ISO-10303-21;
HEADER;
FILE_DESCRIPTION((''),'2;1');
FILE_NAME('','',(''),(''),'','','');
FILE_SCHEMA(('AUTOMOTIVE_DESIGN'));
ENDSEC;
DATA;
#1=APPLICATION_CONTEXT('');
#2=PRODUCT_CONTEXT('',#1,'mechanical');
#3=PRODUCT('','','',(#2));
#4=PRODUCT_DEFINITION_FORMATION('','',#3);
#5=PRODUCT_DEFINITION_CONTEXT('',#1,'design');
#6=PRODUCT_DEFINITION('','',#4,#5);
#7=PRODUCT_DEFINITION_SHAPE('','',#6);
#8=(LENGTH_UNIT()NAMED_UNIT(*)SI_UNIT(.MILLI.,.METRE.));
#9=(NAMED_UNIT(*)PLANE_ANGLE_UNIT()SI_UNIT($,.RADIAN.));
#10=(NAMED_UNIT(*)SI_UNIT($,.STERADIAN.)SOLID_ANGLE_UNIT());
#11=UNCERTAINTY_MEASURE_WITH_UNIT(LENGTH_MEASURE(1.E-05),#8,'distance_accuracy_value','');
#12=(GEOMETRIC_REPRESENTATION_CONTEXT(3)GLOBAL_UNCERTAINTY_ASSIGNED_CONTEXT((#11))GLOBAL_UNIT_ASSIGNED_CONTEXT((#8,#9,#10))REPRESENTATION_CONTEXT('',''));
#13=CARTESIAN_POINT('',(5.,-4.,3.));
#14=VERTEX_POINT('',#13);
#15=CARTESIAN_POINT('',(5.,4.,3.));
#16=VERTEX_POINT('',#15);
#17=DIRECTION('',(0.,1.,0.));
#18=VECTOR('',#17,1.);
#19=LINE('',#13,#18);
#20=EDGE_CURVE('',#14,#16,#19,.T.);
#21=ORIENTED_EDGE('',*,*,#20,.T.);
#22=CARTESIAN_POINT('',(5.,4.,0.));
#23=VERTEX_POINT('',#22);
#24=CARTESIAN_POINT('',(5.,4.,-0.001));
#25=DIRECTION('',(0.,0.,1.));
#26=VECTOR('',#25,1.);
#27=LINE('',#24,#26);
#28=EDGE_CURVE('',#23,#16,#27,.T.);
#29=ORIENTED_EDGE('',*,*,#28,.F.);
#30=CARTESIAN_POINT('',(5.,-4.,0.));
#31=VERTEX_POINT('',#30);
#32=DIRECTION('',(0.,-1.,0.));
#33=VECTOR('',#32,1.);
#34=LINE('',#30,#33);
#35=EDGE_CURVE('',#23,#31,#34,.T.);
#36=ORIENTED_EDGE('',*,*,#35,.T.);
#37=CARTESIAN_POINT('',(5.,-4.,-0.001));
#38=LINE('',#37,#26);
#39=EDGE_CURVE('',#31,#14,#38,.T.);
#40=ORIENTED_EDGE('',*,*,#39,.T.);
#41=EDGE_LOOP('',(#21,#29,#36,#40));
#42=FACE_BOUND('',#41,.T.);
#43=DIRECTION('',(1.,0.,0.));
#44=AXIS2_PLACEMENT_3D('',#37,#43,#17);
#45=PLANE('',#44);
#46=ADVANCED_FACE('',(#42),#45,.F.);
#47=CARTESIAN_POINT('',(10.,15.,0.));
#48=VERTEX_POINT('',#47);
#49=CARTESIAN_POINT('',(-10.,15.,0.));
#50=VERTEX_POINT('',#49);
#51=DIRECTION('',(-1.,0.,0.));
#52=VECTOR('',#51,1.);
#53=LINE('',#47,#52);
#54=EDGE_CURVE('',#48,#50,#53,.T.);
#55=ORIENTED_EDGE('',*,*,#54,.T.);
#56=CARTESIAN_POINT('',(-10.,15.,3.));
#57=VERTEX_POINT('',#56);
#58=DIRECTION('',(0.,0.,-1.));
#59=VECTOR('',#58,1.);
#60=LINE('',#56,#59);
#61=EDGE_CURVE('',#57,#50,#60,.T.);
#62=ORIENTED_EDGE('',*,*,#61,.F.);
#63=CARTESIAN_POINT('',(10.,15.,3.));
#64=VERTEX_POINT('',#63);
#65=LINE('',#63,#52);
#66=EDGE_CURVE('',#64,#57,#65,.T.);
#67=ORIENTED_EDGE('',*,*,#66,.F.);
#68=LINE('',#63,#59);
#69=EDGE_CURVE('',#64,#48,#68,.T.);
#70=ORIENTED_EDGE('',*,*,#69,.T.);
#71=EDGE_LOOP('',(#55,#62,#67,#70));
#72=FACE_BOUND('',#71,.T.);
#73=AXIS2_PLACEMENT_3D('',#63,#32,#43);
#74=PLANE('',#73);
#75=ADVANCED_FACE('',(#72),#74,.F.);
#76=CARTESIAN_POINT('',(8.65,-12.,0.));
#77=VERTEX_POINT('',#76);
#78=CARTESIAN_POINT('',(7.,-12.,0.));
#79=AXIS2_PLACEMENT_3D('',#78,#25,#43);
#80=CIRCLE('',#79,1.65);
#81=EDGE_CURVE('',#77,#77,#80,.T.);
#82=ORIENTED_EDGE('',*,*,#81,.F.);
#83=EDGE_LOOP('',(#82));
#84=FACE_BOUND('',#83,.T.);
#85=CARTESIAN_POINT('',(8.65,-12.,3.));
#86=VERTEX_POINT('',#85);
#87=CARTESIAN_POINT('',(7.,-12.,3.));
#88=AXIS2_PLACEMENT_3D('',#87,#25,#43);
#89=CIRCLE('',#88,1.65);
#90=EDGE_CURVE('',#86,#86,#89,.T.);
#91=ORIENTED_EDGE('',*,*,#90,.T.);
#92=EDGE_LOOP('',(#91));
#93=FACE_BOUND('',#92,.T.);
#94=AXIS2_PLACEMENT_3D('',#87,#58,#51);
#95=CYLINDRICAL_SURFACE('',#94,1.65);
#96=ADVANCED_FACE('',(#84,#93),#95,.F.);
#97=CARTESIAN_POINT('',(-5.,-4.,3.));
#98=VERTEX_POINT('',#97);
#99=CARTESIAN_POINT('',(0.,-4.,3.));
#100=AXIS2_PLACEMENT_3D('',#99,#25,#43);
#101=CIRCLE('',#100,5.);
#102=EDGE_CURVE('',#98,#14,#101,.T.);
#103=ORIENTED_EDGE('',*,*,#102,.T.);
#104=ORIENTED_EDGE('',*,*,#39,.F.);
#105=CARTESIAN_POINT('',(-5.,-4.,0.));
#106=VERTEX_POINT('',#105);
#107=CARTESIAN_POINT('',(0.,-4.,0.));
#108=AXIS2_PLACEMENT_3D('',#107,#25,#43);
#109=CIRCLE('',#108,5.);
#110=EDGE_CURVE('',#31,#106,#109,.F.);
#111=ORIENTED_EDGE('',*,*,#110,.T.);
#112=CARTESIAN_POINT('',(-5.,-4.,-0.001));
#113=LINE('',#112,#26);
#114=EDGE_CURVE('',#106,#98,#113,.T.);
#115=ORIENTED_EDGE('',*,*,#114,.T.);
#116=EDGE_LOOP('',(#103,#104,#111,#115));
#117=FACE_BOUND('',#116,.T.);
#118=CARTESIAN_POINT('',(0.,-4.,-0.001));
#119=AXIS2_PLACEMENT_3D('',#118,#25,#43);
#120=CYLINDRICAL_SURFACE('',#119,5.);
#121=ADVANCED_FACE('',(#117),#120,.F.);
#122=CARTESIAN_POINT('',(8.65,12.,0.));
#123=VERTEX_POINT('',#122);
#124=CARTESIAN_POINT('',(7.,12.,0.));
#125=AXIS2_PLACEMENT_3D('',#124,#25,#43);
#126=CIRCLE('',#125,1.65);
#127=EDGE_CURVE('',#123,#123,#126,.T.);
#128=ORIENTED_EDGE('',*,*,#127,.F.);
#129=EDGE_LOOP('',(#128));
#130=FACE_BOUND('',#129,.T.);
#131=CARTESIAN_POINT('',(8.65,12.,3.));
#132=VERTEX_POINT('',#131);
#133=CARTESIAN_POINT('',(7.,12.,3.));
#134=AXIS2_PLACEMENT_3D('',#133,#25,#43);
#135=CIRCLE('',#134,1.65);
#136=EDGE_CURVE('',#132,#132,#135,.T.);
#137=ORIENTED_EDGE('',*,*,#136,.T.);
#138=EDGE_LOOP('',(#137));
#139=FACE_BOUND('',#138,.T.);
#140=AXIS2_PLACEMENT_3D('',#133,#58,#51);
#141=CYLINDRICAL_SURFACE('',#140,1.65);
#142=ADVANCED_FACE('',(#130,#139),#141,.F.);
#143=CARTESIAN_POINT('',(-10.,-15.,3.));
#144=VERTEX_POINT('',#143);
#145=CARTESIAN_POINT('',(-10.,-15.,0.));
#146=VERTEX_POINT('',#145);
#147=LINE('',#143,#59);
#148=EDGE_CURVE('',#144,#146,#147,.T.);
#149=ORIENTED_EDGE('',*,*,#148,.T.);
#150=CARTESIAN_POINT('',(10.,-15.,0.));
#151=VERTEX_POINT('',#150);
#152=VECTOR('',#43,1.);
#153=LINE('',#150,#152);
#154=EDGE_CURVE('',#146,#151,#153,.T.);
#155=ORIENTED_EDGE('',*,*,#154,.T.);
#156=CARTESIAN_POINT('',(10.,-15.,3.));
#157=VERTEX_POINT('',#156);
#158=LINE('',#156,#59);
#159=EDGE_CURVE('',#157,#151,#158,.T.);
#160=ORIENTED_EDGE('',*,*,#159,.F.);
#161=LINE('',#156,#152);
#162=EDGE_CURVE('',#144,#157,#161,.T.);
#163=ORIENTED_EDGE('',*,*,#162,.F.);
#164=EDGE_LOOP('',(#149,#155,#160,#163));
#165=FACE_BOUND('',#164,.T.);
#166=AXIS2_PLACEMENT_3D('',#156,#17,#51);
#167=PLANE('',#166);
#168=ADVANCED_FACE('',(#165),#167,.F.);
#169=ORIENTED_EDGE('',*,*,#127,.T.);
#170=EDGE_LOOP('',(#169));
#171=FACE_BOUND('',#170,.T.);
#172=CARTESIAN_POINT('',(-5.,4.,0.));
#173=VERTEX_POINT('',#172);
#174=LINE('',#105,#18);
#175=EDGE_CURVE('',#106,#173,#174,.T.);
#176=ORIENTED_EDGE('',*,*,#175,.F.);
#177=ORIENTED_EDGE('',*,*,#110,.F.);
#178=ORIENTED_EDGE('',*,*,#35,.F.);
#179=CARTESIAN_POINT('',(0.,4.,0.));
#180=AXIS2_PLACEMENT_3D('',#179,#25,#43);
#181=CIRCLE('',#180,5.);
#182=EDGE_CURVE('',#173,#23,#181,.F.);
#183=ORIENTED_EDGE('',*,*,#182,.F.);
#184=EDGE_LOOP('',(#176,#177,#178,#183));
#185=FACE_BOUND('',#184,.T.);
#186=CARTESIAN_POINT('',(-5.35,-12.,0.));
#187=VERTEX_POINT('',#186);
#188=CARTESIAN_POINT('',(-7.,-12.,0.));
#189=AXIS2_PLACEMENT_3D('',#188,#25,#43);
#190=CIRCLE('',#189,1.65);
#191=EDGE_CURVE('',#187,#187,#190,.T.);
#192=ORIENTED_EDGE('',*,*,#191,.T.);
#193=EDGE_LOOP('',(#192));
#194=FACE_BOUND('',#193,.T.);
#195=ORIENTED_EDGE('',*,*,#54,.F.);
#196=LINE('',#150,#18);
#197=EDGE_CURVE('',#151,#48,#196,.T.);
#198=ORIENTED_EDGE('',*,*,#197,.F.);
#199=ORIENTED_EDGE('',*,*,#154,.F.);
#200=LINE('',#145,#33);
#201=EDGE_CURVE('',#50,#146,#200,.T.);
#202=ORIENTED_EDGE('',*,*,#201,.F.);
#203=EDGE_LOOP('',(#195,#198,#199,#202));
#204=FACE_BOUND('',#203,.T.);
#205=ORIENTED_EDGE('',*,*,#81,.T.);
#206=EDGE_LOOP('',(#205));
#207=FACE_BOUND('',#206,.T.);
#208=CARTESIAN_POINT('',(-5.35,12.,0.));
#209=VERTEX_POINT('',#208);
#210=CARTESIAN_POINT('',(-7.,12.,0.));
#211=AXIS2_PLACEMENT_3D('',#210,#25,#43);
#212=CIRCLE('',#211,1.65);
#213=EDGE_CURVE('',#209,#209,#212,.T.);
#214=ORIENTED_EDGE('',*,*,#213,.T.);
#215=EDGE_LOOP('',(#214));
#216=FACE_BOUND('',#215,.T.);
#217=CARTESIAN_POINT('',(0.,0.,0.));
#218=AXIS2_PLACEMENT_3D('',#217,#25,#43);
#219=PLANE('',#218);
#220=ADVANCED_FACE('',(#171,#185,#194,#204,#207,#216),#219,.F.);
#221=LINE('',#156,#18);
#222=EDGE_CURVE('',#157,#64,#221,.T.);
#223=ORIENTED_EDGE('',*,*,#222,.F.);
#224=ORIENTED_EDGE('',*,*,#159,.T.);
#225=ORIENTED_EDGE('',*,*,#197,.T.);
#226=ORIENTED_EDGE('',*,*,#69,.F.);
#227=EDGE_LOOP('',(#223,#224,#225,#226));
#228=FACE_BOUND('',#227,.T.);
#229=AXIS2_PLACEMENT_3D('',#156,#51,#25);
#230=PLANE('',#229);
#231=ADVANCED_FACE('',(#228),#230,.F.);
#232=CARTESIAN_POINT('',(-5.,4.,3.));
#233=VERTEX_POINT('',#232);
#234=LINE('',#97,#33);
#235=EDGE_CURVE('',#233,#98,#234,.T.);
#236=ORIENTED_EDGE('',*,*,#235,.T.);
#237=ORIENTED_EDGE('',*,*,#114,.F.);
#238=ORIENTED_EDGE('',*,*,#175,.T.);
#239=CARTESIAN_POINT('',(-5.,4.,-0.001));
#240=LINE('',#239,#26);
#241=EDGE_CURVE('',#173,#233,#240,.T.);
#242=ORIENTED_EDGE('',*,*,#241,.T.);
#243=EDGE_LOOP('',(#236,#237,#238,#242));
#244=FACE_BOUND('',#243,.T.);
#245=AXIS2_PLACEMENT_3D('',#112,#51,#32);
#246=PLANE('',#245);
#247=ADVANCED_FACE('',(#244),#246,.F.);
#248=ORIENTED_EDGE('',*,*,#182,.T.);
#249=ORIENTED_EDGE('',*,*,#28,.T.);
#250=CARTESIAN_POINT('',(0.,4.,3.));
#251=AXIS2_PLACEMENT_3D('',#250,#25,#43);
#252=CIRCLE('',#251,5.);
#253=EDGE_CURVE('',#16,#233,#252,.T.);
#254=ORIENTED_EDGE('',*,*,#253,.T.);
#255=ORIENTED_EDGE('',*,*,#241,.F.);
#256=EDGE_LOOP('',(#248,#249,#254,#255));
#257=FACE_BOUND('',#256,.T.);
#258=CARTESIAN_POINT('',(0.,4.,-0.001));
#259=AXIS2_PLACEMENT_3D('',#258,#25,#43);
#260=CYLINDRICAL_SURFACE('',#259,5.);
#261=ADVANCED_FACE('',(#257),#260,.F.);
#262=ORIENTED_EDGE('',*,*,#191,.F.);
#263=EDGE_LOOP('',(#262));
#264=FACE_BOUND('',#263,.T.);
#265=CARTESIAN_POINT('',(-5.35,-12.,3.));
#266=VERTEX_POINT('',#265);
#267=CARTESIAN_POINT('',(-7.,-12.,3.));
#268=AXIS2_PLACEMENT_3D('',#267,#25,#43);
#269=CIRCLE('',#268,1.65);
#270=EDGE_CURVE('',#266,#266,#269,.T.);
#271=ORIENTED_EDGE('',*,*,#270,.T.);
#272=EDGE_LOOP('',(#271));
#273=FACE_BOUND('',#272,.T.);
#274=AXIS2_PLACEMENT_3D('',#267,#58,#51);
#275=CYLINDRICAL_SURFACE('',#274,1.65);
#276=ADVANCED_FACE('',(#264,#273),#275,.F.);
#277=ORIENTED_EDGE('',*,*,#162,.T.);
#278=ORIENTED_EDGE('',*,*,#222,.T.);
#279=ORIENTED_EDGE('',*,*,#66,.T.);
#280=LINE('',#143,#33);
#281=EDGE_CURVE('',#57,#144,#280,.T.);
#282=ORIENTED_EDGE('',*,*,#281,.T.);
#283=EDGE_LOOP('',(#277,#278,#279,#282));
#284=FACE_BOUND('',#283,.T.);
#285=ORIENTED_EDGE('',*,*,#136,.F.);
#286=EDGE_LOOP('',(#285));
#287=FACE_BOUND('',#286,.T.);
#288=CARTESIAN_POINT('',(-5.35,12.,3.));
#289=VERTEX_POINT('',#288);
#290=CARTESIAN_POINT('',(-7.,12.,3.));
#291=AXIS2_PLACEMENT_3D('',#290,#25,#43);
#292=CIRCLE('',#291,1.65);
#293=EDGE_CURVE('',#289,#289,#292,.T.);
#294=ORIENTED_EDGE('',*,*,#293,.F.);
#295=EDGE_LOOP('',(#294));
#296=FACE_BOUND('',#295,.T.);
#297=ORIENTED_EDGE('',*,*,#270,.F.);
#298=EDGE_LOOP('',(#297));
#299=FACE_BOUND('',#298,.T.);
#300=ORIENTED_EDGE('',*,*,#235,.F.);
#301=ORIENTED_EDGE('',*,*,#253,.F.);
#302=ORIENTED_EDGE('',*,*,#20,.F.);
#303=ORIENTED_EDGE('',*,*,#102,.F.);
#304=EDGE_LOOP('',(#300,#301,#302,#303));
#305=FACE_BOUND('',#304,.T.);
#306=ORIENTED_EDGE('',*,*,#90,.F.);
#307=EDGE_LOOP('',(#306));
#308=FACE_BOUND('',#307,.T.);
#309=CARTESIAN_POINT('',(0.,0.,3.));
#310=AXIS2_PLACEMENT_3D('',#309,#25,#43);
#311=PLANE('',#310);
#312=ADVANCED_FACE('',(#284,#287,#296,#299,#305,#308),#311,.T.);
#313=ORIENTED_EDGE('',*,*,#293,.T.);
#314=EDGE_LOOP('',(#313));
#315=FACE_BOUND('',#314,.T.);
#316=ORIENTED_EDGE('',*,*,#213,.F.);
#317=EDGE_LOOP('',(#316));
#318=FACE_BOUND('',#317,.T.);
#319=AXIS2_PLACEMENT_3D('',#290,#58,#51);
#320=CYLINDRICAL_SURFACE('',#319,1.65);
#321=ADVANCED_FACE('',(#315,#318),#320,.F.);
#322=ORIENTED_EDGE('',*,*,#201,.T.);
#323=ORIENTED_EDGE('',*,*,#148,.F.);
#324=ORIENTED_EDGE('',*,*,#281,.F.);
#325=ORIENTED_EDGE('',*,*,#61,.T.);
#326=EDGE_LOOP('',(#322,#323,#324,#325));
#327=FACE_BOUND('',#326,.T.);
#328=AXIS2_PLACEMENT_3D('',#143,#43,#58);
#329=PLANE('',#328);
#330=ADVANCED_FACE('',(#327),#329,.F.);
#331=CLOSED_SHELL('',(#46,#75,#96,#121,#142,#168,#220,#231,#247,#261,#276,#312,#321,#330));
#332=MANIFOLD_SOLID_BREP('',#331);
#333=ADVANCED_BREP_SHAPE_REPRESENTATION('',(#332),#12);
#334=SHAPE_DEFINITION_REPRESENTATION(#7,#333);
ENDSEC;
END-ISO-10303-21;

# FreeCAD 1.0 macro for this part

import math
import FreeCAD as App
import Part
import Sketcher
Q = App.Units.Quantity


def add_polygon(sketch, points):
    """Adds a closed chain of lines whose ends are joined by coincident constraints."""
    first, n = sketch.GeometryCount, len(points)
    for a, b in zip(points, points[1:] + points[:1]):
        sketch.addGeometry(Part.LineSegment(App.Vector(*a, 0), App.Vector(*b, 0)), False)
    for i in range(n):
        sketch.addConstraint(Sketcher.Constraint("Coincident", first + i, 2, first + (i + 1) % n, 1))

doc = App.newDocument("Part")
params = doc.addObject("Spreadsheet::Sheet", "Params")
for row, (alias, value) in enumerate([
    ("sketch1_diameter", "3.3 mm"),
    ("sketch1_width", "20 mm"),
    ("sketch1_height", "30 mm"),
    ("pad1_length", "3 mm"),
    ("sketch2_radius", "5 mm"),
    ("sketch2_height", "8 mm"),
], start=1):
    params.set(f"A{row}", alias)
    params.set(f"B{row}", "=" + value)
    params.setAlias(f"B{row}", alias)

body = doc.addObject("PartDesign::Body", "Body")

# Sketch on XY plane
sketch1 = doc.addObject("Sketcher::SketchObject", "Sketch")
body.addObject(sketch1)
sketch1.AttachmentSupport = (doc.XY_Plane, [""])
sketch1.MapMode = "FlatFace"
add_polygon(sketch1, [(-10, 15), (-10, -15), (10, -15), (10, 15)])  # lines 0-3
sketch1.addGeometry(Part.Circle(App.Vector(-7, -12, 0), App.Vector(0, 0, 1), 1.65), False)  # 4
sketch1.addGeometry(Part.Circle(App.Vector(7, -12, 0), App.Vector(0, 0, 1), 1.65), False)  # 5
sketch1.addGeometry(Part.Circle(App.Vector(-7, 12, 0), App.Vector(0, 0, 1), 1.65), False)  # 6
sketch1.addGeometry(Part.Circle(App.Vector(7, 12, 0), App.Vector(0, 0, 1), 1.65), False)  # 7
sketch1.addConstraint(Sketcher.Constraint("Vertical", 0))
sketch1.addConstraint(Sketcher.Constraint("Horizontal", 1))
sketch1.addConstraint(Sketcher.Constraint("Vertical", 2))
sketch1.addConstraint(Sketcher.Constraint("Horizontal", 3))
sketch1.addConstraint(Sketcher.Constraint("Equal", 4, 5))
sketch1.addConstraint(Sketcher.Constraint("Equal", 5, 6))
sketch1.addConstraint(Sketcher.Constraint("Equal", 6, 7))
sketch1.addConstraint(Sketcher.Constraint("Symmetric", 5, 3, 6, 3, -1, 1))
sketch1.addConstraint(Sketcher.Constraint("Symmetric", 4, 3, 7, 3, -1, 1))
sketch1.addConstraint(Sketcher.Constraint("Symmetric", 0, 2, 2, 2, -1, 1))
sketch1.addConstraint(Sketcher.Constraint("Symmetric", 4, 3, 5, 3, -2))
sketch1.addConstraint(Sketcher.Constraint("Diameter", 4, Q("3.3 mm")))
sketch1.addConstraint(Sketcher.Constraint("DistanceX", 1, 1, 1, 2, Q("20 mm")))
sketch1.addConstraint(Sketcher.Constraint("DistanceY", 0, 2, 0, 1, Q("30 mm")))
sketch1.addConstraint(Sketcher.Constraint("DistanceX", 4, 3, -1, 1, Q("7 mm")))
sketch1.addConstraint(Sketcher.Constraint("DistanceY", 4, 3, -1, 1, Q("12 mm")))
sketch1.setExpression("Constraints[15]", "Params.sketch1_diameter")
sketch1.setExpression("Constraints[16]", "Params.sketch1_width")
sketch1.setExpression("Constraints[17]", "Params.sketch1_height")
pad1 = doc.addObject("PartDesign::Pad", "Pad")
body.addObject(pad1)
pad1.Profile = sketch1
pad1.setExpression("Length", "Params.pad1_length")

# Sketch on XY plane
sketch2 = doc.addObject("Sketcher::SketchObject", "Sketch001")
body.addObject(sketch2)
sketch2.AttachmentSupport = (doc.XY_Plane, [""])
sketch2.MapMode = "FlatFace"
sketch2.AttachmentOffset = App.Placement(App.Vector(0, 0, 3), App.Rotation())
sketch2.addGeometry(Part.LineSegment(App.Vector(-5, 4, 0), App.Vector(-5, -4, 0)), False)
sketch2.addGeometry(Part.ArcOfCircle(Part.Circle(App.Vector(0, -4, 0), App.Vector(0, 0, 1), 5), math.radians(180), math.radians(360)), False)
sketch2.addGeometry(Part.LineSegment(App.Vector(5, -4, 0), App.Vector(5, 4, 0)), False)
sketch2.addGeometry(Part.ArcOfCircle(Part.Circle(App.Vector(0, 4, 0), App.Vector(0, 0, 1), 5), math.radians(0), math.radians(180)), False)
sketch2.addConstraint(Sketcher.Constraint("Tangent", 0, 2, 1, 1))
sketch2.addConstraint(Sketcher.Constraint("Tangent", 1, 2, 2, 1))
sketch2.addConstraint(Sketcher.Constraint("Tangent", 2, 2, 3, 1))
sketch2.addConstraint(Sketcher.Constraint("Tangent", 3, 2, 0, 1))
sketch2.addConstraint(Sketcher.Constraint("Vertical", 0))
sketch2.addConstraint(Sketcher.Constraint("Vertical", 2))
sketch2.addConstraint(Sketcher.Constraint("Symmetric", 1, 3, 3, 3, -1, 1))
sketch2.addConstraint(Sketcher.Constraint("Radius", 1, Q("5 mm")))
sketch2.addConstraint(Sketcher.Constraint("DistanceY", 0, 2, 0, 1, Q("8 mm")))
sketch2.setExpression("Constraints[7]", "Params.sketch2_radius")
sketch2.setExpression("Constraints[8]", "Params.sketch2_height")
pocket1 = doc.addObject("PartDesign::Pocket", "Pocket")
body.addObject(pocket1)
pocket1.Profile = sketch2
pocket1.Type = "UpToFirst"

doc.recompute()
